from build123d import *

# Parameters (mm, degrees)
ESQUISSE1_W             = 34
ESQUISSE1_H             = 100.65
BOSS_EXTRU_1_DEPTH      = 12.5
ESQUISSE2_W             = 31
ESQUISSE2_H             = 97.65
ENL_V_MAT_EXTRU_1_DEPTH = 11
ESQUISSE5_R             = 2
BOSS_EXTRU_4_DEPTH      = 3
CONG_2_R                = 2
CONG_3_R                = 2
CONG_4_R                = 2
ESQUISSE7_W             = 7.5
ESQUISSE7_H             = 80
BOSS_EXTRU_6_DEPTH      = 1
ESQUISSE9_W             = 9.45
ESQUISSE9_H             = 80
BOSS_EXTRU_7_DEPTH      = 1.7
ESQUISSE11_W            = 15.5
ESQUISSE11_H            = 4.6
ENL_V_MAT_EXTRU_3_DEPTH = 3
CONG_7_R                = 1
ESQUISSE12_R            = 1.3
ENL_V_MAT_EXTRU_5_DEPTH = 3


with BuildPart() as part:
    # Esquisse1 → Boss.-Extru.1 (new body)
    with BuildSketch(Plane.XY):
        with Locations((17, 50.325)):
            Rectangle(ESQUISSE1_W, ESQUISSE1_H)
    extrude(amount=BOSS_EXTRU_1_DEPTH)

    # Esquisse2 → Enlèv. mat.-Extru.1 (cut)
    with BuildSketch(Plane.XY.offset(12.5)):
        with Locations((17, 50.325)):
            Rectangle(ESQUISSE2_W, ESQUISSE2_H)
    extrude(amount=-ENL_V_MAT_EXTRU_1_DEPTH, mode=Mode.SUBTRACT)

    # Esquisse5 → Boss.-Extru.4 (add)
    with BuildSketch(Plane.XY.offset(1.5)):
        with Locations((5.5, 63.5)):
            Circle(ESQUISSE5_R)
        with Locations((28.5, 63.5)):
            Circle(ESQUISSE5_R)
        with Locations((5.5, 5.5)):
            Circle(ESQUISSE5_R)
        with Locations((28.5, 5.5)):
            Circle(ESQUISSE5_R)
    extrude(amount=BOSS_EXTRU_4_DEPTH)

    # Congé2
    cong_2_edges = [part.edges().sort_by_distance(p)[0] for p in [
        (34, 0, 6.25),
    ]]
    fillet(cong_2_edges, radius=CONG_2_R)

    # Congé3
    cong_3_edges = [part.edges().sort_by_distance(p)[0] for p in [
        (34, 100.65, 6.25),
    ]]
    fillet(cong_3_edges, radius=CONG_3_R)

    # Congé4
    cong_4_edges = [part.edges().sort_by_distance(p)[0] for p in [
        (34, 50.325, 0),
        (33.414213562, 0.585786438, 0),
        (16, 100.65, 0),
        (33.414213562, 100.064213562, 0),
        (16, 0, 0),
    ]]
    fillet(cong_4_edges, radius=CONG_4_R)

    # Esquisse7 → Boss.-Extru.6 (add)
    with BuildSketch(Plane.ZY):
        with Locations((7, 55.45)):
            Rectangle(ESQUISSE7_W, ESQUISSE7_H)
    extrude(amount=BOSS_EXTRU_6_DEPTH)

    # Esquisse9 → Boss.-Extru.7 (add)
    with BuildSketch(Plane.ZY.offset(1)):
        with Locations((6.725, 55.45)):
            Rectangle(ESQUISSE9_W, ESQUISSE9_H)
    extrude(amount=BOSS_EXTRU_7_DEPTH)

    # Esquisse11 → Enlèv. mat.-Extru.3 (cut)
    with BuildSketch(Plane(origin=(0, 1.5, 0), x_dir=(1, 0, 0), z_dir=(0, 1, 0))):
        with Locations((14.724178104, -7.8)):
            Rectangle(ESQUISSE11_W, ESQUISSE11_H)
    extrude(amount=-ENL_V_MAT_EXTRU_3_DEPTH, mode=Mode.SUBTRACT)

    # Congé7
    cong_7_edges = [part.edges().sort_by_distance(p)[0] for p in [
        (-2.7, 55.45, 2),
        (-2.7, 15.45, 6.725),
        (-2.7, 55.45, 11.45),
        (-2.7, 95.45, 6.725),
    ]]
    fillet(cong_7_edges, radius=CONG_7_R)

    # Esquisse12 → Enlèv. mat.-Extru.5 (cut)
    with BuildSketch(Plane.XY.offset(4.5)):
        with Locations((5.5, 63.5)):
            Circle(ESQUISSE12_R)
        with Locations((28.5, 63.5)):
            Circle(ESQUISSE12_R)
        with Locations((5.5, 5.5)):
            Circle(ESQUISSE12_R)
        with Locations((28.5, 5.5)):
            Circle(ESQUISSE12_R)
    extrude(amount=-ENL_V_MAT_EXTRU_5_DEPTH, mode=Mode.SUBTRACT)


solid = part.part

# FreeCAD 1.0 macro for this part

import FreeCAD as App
import Part
import Sketcher
Q = App.Units.Quantity


def edges_at(feature, points):
    """Names of the edges that pass closest to the given points."""
    edges = feature.Shape.Edges
    near = lambda p: min(range(len(edges)), key=lambda i: edges[i].distToShape(Part.Vertex(*p))[0])
    return sorted({f"Edge{near(p) + 1}" for p in points})

doc = App.newDocument("Part")
body = doc.addObject("PartDesign::Body", "Body")

# Sketch on XY plane
sketch1 = body.newObject("Sketcher::SketchObject", "Sketch")
sketch1.AttachmentSupport = (doc.getObject("XY_Plane"), [""])
sketch1.MapMode = "FlatFace"
sketch1.addGeometry([
    Part.LineSegment(App.Vector(0, 101, 0), App.Vector(0, 0, 0)),
    Part.LineSegment(App.Vector(0, 0, 0), App.Vector(34, 0, 0)),
    Part.LineSegment(App.Vector(34, 0, 0), App.Vector(34, 101, 0)),
    Part.LineSegment(App.Vector(34, 101, 0), App.Vector(0, 101, 0)),
], False)
sketch1.addConstraint([
    Sketcher.Constraint("Coincident", 0, 2, 1, 1),
    Sketcher.Constraint("Coincident", 1, 2, 2, 1),
    Sketcher.Constraint("Coincident", 2, 2, 3, 1),
    Sketcher.Constraint("Coincident", 3, 2, 0, 1),
    Sketcher.Constraint("Vertical", 0),
    Sketcher.Constraint("Horizontal", 1),
    Sketcher.Constraint("Vertical", 2),
    Sketcher.Constraint("Horizontal", 3),
    Sketcher.Constraint("Coincident", 0, 2, -1, 1),
    Sketcher.Constraint("DistanceX", 1, 1, 1, 2, Q("34 mm")),
    Sketcher.Constraint("DistanceY", 0, 2, 0, 1, Q("100.65 mm")),
])
pad1 = body.newObject("PartDesign::Pad", "Pad")
pad1.Profile = sketch1
pad1.Length = 12.5

# Sketch on XY plane
sketch2 = body.newObject("Sketcher::SketchObject", "Sketch001")
sketch2.AttachmentSupport = (doc.getObject("XY_Plane"), [""])
sketch2.MapMode = "FlatFace"
sketch2.AttachmentOffset = App.Placement(App.Vector(0, 0, 12.5), App.Rotation())
sketch2.addGeometry([
    Part.LineSegment(App.Vector(2, 99, 0), App.Vector(2, 2, 0)),
    Part.LineSegment(App.Vector(2, 2, 0), App.Vector(32, 2, 0)),
    Part.LineSegment(App.Vector(32, 2, 0), App.Vector(32, 99, 0)),
    Part.LineSegment(App.Vector(32, 99, 0), App.Vector(2, 99, 0)),
], False)
sketch2.addConstraint([
    Sketcher.Constraint("Coincident", 0, 2, 1, 1),
    Sketcher.Constraint("Coincident", 1, 2, 2, 1),
    Sketcher.Constraint("Coincident", 2, 2, 3, 1),
    Sketcher.Constraint("Coincident", 3, 2, 0, 1),
    Sketcher.Constraint("Vertical", 0),
    Sketcher.Constraint("Horizontal", 1),
    Sketcher.Constraint("Vertical", 2),
    Sketcher.Constraint("Horizontal", 3),
    Sketcher.Constraint("DistanceX", 1, 1, 1, 2, Q("31 mm")),
    Sketcher.Constraint("DistanceY", 0, 2, 0, 1, Q("97.65 mm")),
    Sketcher.Constraint("DistanceX", -1, 1, 0, 2, Q("1.5 mm")),
    Sketcher.Constraint("DistanceY", -1, 1, 0, 2, Q("1.5 mm")),
])
pocket1 = body.newObject("PartDesign::Pocket", "Pocket")
pocket1.Profile = sketch2
pocket1.Length = 11

# Sketch on XY plane
sketch3 = body.newObject("Sketcher::SketchObject", "Sketch002")
sketch3.AttachmentSupport = (doc.getObject("XY_Plane"), [""])
sketch3.MapMode = "FlatFace"
sketch3.AttachmentOffset = App.Placement(App.Vector(0, 0, 1.5), App.Rotation())
sketch3.addGeometry([
    Part.Circle(App.Vector(5.5, 63.5, 0), App.Vector(0, 0, 1), 2),
    Part.Circle(App.Vector(28.5, 63.5, 0), App.Vector(0, 0, 1), 2),
    Part.Circle(App.Vector(5.5, 5.5, 0), App.Vector(0, 0, 1), 2),
    Part.Circle(App.Vector(28.5, 5.5, 0), App.Vector(0, 0, 1), 2),
], False)
sketch3.addConstraint([
    Sketcher.Constraint("Equal", 0, 1),
    Sketcher.Constraint("Equal", 1, 2),
    Sketcher.Constraint("Equal", 2, 3),
    Sketcher.Constraint("Horizontal", 0, 3, 1, 3),
    Sketcher.Constraint("Horizontal", 2, 3, 3, 3),
    Sketcher.Constraint("Vertical", 0, 3, 2, 3),
    Sketcher.Constraint("Vertical", 1, 3, 3, 3),
    Sketcher.Constraint("Diameter", 0, Q("4 mm")),
    Sketcher.Constraint("DistanceX", 0, 3, 1, 3, Q("23 mm")),
    Sketcher.Constraint("DistanceY", 2, 3, 0, 3, Q("58 mm")),
    Sketcher.Constraint("DistanceX", -1, 1, 0, 3, Q("5.5 mm")),
    Sketcher.Constraint("DistanceY", -1, 1, 0, 3, Q("63.5 mm")),
])
pad2 = body.newObject("PartDesign::Pad", "Pad001")
pad2.Profile = sketch3
pad2.Length = 3
doc.recompute()

fillet = body.newObject("PartDesign::Fillet", "Fillet")
fillet.Base = (pad2, edges_at(pad2, [(34, 0, 6.25)]))
fillet.Radius = 2
doc.recompute()

fillet2 = body.newObject("PartDesign::Fillet", "Fillet001")
fillet2.Base = (fillet, edges_at(fillet, [(34, 100.65, 6.25)]))
fillet2.Radius = 2
doc.recompute()

fillet3 = body.newObject("PartDesign::Fillet", "Fillet002")
fillet3.Base = (fillet2, edges_at(fillet2, [
    (34, 50.325, 0),
    (33.414, 0.586, 0),
    (16, 100.65, 0),
    (33.414, 100.064, 0),
    (16, 0, 0),
]))
fillet3.Radius = 2

# Sketch on YZ plane
sketch4 = body.newObject("Sketcher::SketchObject", "Sketch003")
sketch4.AttachmentSupport = (doc.getObject("YZ_Plane"), [""])
sketch4.MapMode = "FlatFace"
sketch4.addGeometry([
    Part.LineSegment(App.Vector(95, 3, 0), App.Vector(15, 3, 0)),
    Part.LineSegment(App.Vector(15, 3, 0), App.Vector(15, 11, 0)),
    Part.LineSegment(App.Vector(15, 11, 0), App.Vector(95, 11, 0)),
    Part.LineSegment(App.Vector(95, 11, 0), App.Vector(95, 3, 0)),
], False)
sketch4.addConstraint([
    Sketcher.Constraint("Coincident", 0, 2, 1, 1),
    Sketcher.Constraint("Coincident", 1, 2, 2, 1),
    Sketcher.Constraint("Coincident", 2, 2, 3, 1),
    Sketcher.Constraint("Coincident", 3, 2, 0, 1),
    Sketcher.Constraint("Horizontal", 0),
    Sketcher.Constraint("Vertical", 1),
    Sketcher.Constraint("Horizontal", 2),
    Sketcher.Constraint("Vertical", 3),
    Sketcher.Constraint("DistanceX", 0, 2, 0, 1, Q("80 mm")),
    Sketcher.Constraint("DistanceY", 1, 1, 1, 2, Q("7.5 mm")),
    Sketcher.Constraint("DistanceX", -1, 1, 0, 2, Q("15.45 mm")),
    Sketcher.Constraint("DistanceY", -1, 1, 0, 2, Q("3.25 mm")),
])
pad3 = body.newObject("PartDesign::Pad", "Pad002")
pad3.Profile = sketch4
pad3.Length = 1
pad3.Reversed = True

# Sketch on YZ plane
sketch5 = body.newObject("Sketcher::SketchObject", "Sketch004")
sketch5.AttachmentSupport = (doc.getObject("YZ_Plane"), [""])
sketch5.MapMode = "FlatFace"
sketch5.AttachmentOffset = App.Placement(App.Vector(0, 0, -1), App.Rotation())
sketch5.addGeometry([
    Part.LineSegment(App.Vector(95, 2, 0), App.Vector(15, 2, 0)),
    Part.LineSegment(App.Vector(15, 2, 0), App.Vector(15, 11, 0)),
    Part.LineSegment(App.Vector(15, 11, 0), App.Vector(95, 11, 0)),
    Part.LineSegment(App.Vector(95, 11, 0), App.Vector(95, 2, 0)),
], False)
sketch5.addConstraint([
    Sketcher.Constraint("Coincident", 0, 2, 1, 1),
    Sketcher.Constraint("Coincident", 1, 2, 2, 1),
    Sketcher.Constraint("Coincident", 2, 2, 3, 1),
    Sketcher.Constraint("Coincident", 3, 2, 0, 1),
    Sketcher.Constraint("Horizontal", 0),
    Sketcher.Constraint("Vertical", 1),
    Sketcher.Constraint("Horizontal", 2),
    Sketcher.Constraint("Vertical", 3),
    Sketcher.Constraint("DistanceX", 0, 2, 0, 1, Q("80 mm")),
    Sketcher.Constraint("DistanceY", -1, 1, 0, 2, Q("2 mm")),
    Sketcher.Constraint("DistanceY", 1, 1, 1, 2, Q("9.45 mm")),
    Sketcher.Constraint("DistanceX", -1, 1, 0, 2, Q("15.45 mm")),
])
pad4 = body.newObject("PartDesign::Pad", "Pad003")
pad4.Profile = sketch5
pad4.Length = 1.7
pad4.Reversed = True

# Sketch on XZ plane
sketch6 = body.newObject("Sketcher::SketchObject", "Sketch005")
sketch6.AttachmentSupport = (doc.getObject("XZ_Plane"), [""])
sketch6.MapMode = "FlatFace"
sketch6.AttachmentOffset = App.Placement(App.Vector(0, 0, -1.5), App.Rotation())
sketch6.addGeometry([
    Part.LineSegment(App.Vector(7, 5.5, 0), App.Vector(7, 10.1, 0)),
    Part.LineSegment(App.Vector(7, 10.1, 0), App.Vector(22.5, 10.1, 0)),
    Part.LineSegment(App.Vector(22.5, 10.1, 0), App.Vector(22.5, 5.5, 0)),
    Part.LineSegment(App.Vector(22.5, 5.5, 0), App.Vector(7, 5.5, 0)),
], False)
sketch6.addConstraint([
    Sketcher.Constraint("Coincident", 0, 2, 1, 1),
    Sketcher.Constraint("Coincident", 1, 2, 2, 1),
    Sketcher.Constraint("Coincident", 2, 2, 3, 1),
    Sketcher.Constraint("Coincident", 3, 2, 0, 1),
    Sketcher.Constraint("Vertical", 0),
    Sketcher.Constraint("Horizontal", 1),
    Sketcher.Constraint("Vertical", 2),
    Sketcher.Constraint("Horizontal", 3),
    Sketcher.Constraint("DistanceX", 1, 1, 1, 2, Q("15.5 mm")),
    Sketcher.Constraint("DistanceY", 0, 1, 0, 2, Q("4.6 mm")),
    Sketcher.Constraint("DistanceY", -1, 1, 0, 2, Q("10.1 mm")),
    Sketcher.Constraint("DistanceX", -1, 1, 0, 2, Q("6.974178 mm")),
])
pocket2 = body.newObject("PartDesign::Pocket", "Pocket001")
pocket2.Profile = sketch6
pocket2.Length = 3
pocket2.Reversed = True
doc.recompute()

fillet4 = body.newObject("PartDesign::Fillet", "Fillet003")
fillet4.Base = (pocket2, edges_at(pocket2, [
    (-2.7, 55.45, 2),
    (-2.7, 15.45, 6.725),
    (-2.7, 55.45, 11.45),
    (-2.7, 95.45, 6.725),
]))
fillet4.Radius = 1

# Sketch on XY plane
sketch7 = body.newObject("Sketcher::SketchObject", "Sketch006")
sketch7.AttachmentSupport = (doc.getObject("XY_Plane"), [""])
sketch7.MapMode = "FlatFace"
sketch7.AttachmentOffset = App.Placement(App.Vector(0, 0, 4.5), App.Rotation())
sketch7.addGeometry([
    Part.Circle(App.Vector(5.5, 63.5, 0), App.Vector(0, 0, 1), 1.3),
    Part.Circle(App.Vector(28.5, 63.5, 0), App.Vector(0, 0, 1), 1.3),
    Part.Circle(App.Vector(5.5, 5.5, 0), App.Vector(0, 0, 1), 1.3),
    Part.Circle(App.Vector(28.5, 5.5, 0), App.Vector(0, 0, 1), 1.3),
], False)
sketch7.addConstraint([
    Sketcher.Constraint("Equal", 0, 1),
    Sketcher.Constraint("Equal", 1, 2),
    Sketcher.Constraint("Equal", 2, 3),
    Sketcher.Constraint("Horizontal", 0, 3, 1, 3),
    Sketcher.Constraint("Horizontal", 2, 3, 3, 3),
    Sketcher.Constraint("Vertical", 0, 3, 2, 3),
    Sketcher.Constraint("Vertical", 1, 3, 3, 3),
    Sketcher.Constraint("Diameter", 0, Q("2.6 mm")),
    Sketcher.Constraint("DistanceX", 0, 3, 1, 3, Q("23 mm")),
    Sketcher.Constraint("DistanceY", 2, 3, 0, 3, Q("58 mm")),
    Sketcher.Constraint("DistanceX", -1, 1, 0, 3, Q("5.5 mm")),
    Sketcher.Constraint("DistanceY", -1, 1, 0, 3, Q("63.5 mm")),
])
pocket3 = body.newObject("PartDesign::Pocket", "Pocket002")
pocket3.Profile = sketch7
pocket3.Length = 3

doc.recompute()
